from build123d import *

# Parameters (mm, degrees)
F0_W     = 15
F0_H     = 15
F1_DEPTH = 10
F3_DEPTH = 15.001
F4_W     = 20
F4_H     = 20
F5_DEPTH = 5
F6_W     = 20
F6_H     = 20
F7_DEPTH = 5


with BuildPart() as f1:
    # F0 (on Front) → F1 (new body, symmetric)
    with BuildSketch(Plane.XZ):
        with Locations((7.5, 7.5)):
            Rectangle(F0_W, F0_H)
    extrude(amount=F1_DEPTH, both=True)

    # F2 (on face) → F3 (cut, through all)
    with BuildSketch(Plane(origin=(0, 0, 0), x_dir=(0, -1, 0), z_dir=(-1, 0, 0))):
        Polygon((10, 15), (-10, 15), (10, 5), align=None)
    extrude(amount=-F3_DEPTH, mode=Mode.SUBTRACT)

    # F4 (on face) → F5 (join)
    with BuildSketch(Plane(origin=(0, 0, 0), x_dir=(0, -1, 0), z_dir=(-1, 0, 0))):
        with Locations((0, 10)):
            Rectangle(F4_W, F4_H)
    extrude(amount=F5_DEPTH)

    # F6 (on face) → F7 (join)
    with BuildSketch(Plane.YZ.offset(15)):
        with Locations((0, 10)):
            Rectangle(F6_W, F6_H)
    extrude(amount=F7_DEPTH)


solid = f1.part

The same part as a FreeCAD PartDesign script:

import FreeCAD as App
import Part
import Sketcher

V = App.Vector
Q = App.Units.Quantity


def add_polygon(sketch, points):
    """Adds a closed chain of lines whose ends are joined by coincident constraints."""
    first, n = sketch.GeometryCount, len(points)
    for a, b in zip(points, points[1:] + points[:1]):
        sketch.addGeometry(Part.LineSegment(App.Vector(*a, 0), App.Vector(*b, 0)), False)
    for i in range(n):
        sketch.addConstraint(Sketcher.Constraint("Coincident", first + i, 2, first + (i + 1) % n, 1))

doc = App.newDocument("Part")
params = doc.addObject("Spreadsheet::Sheet", "Params")
for row, (alias, value) in enumerate([
    ("sketch1_width", "15 mm"),
    ("pad1_length", "20 mm"),
    ("sketch2_width", "20 mm"),
    ("sketch2_height", "10 mm"),
    ("sketch3_width", "20 mm"),
    ("pad2_length", "5 mm"),
    ("sketch4_width", "20 mm"),
    ("pad3_length", "5 mm"),
], start=1):
    params.set(f"A{row}", alias)
    params.set(f"B{row}", "=" + value)
    params.setAlias(f"B{row}", alias)

body = doc.addObject("PartDesign::Body", "Body")

# Sketch on XZ plane
sketch1 = doc.addObject("Sketcher::SketchObject", "Sketch")
body.addObject(sketch1)
sketch1.AttachmentSupport = (doc.XZ_Plane, [""])
sketch1.MapMode = "FlatFace"
add_polygon(sketch1, [(0, 15), (0, 0), (15, 0), (15, 15)])  # lines 0-3
sketch1.addConstraint([
    Sketcher.Constraint("Vertical", 0),
    Sketcher.Constraint("Horizontal", 1),
    Sketcher.Constraint("Vertical", 2),
    Sketcher.Constraint("Horizontal", 3),
    Sketcher.Constraint("Coincident", 0, 2, -1, 1),
    Sketcher.Constraint("Equal", 3, 0),
    Sketcher.Constraint("DistanceX", 1, 1, 1, 2, Q("15 mm")),
])
sketch1.setExpression("Constraints[10]", "Params.sketch1_width")
pad1 = doc.addObject("PartDesign::Pad", "Pad")
body.addObject(pad1)
pad1.Profile = sketch1
pad1.setExpression("Length", "Params.pad1_length")
pad1.Midplane = True

# Sketch on YZ plane
sketch2 = doc.addObject("Sketcher::SketchObject", "Sketch001")
body.addObject(sketch2)
sketch2.AttachmentSupport = (doc.YZ_Plane, [""])
sketch2.MapMode = "FlatFace"
add_polygon(sketch2, [(-10, 15), (10, 15), (-10, 5)])  # lines 0-2
sketch2.addConstraint([
    Sketcher.Constraint("Horizontal", 0),
    Sketcher.Constraint("Vertical", 2),
    Sketcher.Constraint("DistanceX", 0, 1, 0, 2, Q("20 mm")),
    Sketcher.Constraint("DistanceY", 2, 1, 2, 2, Q("10 mm")),
    Sketcher.Constraint("DistanceX", -1, 1, 0, 2, Q("10 mm")),
    Sketcher.Constraint("DistanceY", -1, 1, 0, 2, Q("15 mm")),
])
sketch2.setExpression("Constraints[5]", "Params.sketch2_width")
sketch2.setExpression("Constraints[6]", "Params.sketch2_height")
pocket1 = doc.addObject("PartDesign::Pocket", "Pocket")
body.addObject(pocket1)
pocket1.Profile = sketch2
pocket1.Type = "ThroughAll"
pocket1.Reversed = True

# Sketch on YZ plane
sketch3 = doc.addObject("Sketcher::SketchObject", "Sketch002")
body.addObject(sketch3)
sketch3.AttachmentSupport = (doc.YZ_Plane, [""])
sketch3.MapMode = "FlatFace"
add_polygon(sketch3, [(10, 20), (10, 0), (-10, 0), (-10, 20)])  # lines 0-3
sketch3.addConstraint([
    Sketcher.Constraint("Vertical", 0),
    Sketcher.Constraint("Horizontal", 1),
    Sketcher.Constraint("Vertical", 2),
    Sketcher.Constraint("Horizontal", 3),
    Sketcher.Constraint("Symmetric", 0, 2, 1, 2, -1, 1),
    Sketcher.Constraint("Equal", 3, 0),
    Sketcher.Constraint("DistanceX", 1, 2, 1, 1, Q("20 mm")),
])
sketch3.setExpression("Constraints[10]", "Params.sketch3_width")
pad2 = doc.addObject("PartDesign::Pad", "Pad001")
body.addObject(pad2)
pad2.Profile = sketch3
pad2.setExpression("Length", "Params.pad2_length")
pad2.Reversed = True

# Sketch on YZ plane
sketch4 = doc.addObject("Sketcher::SketchObject", "Sketch003")
body.addObject(sketch4)
sketch4.AttachmentSupport = (doc.YZ_Plane, [""])
sketch4.MapMode = "FlatFace"
sketch4.AttachmentOffset = App.Placement(V(0, 0, 15), App.Rotation())
add_polygon(sketch4, [(-10, 20), (-10, 0), (10, 0), (10, 20)])  # lines 0-3
sketch4.addConstraint([
    Sketcher.Constraint("Vertical", 0),
    Sketcher.Constraint("Horizontal", 1),
    Sketcher.Constraint("Vertical", 2),
    Sketcher.Constraint("Horizontal", 3),
    Sketcher.Constraint("Symmetric", 0, 2, 1, 2, -1, 1),
    Sketcher.Constraint("Equal", 3, 0),
    Sketcher.Constraint("DistanceX", 1, 1, 1, 2, Q("20 mm")),
])
sketch4.setExpression("Constraints[10]", "Params.sketch4_width")
pad3 = doc.addObject("PartDesign::Pad", "Pad002")
body.addObject(pad3)
pad3.Profile = sketch4
pad3.setExpression("Length", "Params.pad3_length")

doc.recompute()
